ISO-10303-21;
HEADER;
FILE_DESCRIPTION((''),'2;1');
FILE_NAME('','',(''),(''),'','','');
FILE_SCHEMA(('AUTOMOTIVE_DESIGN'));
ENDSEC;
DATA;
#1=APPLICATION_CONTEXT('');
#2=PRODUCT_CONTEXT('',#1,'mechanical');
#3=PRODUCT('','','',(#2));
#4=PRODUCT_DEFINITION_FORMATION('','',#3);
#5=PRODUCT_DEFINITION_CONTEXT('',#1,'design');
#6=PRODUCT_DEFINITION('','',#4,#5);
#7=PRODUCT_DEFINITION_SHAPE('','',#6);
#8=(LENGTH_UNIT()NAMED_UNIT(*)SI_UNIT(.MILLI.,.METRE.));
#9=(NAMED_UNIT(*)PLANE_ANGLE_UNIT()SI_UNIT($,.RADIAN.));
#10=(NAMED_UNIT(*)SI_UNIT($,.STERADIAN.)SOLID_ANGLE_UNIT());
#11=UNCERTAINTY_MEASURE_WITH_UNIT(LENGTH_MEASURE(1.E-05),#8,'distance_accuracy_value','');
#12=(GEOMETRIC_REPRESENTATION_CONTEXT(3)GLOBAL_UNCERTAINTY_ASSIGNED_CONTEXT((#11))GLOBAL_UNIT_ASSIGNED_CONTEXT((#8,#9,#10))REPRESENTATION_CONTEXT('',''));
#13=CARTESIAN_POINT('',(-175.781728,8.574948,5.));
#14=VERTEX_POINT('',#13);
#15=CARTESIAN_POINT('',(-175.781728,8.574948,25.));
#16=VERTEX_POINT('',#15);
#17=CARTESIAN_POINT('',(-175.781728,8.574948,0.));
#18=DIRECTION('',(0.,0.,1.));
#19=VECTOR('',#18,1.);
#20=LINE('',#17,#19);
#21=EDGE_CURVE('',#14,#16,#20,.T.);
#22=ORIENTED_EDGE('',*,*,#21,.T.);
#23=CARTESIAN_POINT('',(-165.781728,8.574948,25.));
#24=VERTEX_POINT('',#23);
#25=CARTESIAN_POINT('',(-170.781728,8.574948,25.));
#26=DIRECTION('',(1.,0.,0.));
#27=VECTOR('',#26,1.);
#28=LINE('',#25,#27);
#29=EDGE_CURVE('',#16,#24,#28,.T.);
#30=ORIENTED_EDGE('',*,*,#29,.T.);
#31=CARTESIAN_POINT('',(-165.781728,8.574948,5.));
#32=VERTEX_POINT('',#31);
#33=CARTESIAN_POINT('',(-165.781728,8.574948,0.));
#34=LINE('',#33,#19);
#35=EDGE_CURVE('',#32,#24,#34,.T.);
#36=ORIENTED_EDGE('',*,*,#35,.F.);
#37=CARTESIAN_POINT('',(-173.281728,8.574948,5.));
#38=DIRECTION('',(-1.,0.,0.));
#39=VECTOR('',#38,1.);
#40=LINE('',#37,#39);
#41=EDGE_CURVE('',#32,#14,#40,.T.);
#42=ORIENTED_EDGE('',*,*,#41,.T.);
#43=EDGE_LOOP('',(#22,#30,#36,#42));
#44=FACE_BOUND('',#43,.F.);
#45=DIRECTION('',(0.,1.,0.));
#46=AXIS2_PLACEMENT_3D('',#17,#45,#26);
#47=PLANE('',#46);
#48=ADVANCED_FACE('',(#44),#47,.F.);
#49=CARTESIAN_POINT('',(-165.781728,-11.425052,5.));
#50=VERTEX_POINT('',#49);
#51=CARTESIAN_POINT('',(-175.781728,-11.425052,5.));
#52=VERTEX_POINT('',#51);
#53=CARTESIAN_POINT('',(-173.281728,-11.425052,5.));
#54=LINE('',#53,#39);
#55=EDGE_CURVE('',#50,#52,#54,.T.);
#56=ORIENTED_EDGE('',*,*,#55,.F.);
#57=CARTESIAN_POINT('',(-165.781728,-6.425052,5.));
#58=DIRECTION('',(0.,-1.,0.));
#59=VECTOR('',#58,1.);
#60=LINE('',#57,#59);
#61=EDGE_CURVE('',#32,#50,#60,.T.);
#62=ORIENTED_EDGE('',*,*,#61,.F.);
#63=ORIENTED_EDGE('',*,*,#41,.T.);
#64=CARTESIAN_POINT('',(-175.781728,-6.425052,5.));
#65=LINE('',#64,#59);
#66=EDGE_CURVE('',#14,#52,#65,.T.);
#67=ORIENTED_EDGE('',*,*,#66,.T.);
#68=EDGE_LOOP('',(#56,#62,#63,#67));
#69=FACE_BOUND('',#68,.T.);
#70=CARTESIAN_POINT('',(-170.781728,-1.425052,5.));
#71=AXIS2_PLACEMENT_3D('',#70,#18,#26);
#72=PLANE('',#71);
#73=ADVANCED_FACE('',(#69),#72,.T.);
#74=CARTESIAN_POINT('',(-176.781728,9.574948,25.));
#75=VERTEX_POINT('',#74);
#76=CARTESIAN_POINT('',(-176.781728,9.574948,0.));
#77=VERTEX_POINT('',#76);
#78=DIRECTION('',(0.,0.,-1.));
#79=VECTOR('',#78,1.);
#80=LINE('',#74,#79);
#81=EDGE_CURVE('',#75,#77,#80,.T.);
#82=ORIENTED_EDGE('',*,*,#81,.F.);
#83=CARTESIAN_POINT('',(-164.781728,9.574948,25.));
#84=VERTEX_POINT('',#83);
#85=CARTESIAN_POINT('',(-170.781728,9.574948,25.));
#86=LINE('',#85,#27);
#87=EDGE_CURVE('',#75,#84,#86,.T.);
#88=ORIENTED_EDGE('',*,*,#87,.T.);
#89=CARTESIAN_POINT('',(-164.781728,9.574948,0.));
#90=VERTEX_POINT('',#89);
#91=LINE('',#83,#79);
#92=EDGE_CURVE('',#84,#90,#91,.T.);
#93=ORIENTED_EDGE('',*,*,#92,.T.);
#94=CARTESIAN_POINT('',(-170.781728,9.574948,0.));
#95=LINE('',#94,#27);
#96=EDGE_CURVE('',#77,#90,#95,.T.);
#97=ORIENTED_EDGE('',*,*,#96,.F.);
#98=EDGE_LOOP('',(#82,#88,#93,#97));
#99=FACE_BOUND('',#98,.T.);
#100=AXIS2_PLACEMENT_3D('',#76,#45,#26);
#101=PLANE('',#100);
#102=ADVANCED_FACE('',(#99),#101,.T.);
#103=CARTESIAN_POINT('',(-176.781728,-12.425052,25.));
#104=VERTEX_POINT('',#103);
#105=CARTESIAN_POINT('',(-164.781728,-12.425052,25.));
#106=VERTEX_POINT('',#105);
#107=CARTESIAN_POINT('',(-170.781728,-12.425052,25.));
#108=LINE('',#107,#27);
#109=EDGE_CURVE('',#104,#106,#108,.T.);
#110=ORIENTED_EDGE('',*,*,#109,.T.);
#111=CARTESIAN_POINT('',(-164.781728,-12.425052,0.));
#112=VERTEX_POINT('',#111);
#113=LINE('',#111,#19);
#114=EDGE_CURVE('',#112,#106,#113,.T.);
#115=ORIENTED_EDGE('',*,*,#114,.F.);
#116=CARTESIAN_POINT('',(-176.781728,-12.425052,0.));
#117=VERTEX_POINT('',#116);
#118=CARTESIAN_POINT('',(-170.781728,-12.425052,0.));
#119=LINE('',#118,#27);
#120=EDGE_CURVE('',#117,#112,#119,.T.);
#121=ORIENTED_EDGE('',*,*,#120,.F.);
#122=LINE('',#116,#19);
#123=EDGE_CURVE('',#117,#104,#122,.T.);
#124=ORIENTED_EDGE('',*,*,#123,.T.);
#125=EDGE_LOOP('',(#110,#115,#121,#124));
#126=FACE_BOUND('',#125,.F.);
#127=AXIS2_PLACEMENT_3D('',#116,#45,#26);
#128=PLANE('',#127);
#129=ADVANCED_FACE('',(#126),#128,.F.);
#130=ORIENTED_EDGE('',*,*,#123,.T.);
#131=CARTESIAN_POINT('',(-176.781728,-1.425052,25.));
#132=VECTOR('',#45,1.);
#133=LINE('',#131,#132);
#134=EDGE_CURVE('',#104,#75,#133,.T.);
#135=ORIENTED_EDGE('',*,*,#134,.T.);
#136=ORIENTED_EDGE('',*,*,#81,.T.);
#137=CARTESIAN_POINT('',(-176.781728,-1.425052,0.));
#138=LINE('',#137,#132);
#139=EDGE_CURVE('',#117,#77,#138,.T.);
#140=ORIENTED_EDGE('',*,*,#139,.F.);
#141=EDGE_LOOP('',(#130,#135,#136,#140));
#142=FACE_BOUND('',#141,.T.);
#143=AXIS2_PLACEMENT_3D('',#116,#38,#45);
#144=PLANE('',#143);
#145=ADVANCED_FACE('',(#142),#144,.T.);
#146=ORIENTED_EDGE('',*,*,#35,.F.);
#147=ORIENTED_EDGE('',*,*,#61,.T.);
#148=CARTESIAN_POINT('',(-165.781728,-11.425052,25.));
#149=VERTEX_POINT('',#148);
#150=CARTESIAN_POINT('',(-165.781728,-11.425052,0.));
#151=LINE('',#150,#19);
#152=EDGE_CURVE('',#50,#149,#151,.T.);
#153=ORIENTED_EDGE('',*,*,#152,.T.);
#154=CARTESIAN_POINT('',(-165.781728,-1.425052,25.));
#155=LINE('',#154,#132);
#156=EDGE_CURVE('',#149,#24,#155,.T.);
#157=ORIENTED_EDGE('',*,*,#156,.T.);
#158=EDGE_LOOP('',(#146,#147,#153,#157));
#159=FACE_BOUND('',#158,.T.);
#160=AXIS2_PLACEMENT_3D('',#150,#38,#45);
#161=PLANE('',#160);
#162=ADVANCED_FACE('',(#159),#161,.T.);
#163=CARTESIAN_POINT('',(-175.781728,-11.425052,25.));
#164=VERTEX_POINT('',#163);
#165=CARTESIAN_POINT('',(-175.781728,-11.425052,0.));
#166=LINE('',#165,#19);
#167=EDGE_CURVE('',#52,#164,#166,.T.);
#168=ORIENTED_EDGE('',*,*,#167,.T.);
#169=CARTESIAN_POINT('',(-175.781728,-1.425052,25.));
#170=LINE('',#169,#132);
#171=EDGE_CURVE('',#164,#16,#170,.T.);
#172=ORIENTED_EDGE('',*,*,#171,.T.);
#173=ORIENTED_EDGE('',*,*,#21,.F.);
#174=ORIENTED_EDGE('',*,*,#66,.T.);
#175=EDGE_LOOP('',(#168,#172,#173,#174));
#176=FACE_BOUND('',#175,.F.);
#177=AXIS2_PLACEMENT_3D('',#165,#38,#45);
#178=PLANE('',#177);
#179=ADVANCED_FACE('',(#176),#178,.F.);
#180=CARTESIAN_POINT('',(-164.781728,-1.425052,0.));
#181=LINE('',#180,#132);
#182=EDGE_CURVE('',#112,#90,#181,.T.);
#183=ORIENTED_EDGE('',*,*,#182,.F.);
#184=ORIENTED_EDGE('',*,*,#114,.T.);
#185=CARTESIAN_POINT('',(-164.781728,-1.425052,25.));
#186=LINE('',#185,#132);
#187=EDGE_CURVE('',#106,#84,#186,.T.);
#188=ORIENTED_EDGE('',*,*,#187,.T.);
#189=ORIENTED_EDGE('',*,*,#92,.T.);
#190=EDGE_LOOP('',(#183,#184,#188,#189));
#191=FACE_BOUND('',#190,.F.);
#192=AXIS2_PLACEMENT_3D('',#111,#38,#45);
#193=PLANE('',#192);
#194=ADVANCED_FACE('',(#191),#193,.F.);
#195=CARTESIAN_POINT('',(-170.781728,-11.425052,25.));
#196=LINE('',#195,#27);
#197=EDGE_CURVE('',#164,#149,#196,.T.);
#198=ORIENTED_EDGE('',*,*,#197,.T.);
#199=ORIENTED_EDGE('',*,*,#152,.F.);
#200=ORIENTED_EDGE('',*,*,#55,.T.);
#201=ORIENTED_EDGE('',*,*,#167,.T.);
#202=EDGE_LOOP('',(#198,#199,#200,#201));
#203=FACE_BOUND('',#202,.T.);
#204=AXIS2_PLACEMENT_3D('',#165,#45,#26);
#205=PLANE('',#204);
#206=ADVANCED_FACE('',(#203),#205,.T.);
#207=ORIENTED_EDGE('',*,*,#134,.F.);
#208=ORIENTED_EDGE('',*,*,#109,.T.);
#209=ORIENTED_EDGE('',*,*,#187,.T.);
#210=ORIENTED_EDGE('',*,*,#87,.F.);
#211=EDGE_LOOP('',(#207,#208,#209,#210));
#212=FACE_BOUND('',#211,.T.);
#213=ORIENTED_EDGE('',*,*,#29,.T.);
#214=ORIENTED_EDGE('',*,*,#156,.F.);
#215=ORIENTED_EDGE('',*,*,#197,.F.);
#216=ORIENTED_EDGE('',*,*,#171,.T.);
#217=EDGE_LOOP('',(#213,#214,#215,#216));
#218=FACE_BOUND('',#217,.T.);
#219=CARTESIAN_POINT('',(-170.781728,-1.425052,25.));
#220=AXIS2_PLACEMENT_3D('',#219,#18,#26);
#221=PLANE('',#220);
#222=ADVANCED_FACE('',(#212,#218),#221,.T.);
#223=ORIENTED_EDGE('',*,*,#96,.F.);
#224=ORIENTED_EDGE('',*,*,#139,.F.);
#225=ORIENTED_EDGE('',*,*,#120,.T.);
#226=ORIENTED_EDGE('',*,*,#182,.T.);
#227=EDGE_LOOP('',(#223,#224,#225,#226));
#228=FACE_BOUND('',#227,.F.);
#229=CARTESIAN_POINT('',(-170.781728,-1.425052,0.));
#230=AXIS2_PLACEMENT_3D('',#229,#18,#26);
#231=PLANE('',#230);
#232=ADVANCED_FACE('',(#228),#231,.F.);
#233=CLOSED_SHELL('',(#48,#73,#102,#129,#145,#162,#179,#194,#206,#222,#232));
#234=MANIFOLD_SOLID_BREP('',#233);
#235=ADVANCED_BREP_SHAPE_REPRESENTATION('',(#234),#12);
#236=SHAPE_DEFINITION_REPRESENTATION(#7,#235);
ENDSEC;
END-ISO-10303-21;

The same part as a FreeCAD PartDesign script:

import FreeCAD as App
import Part
import Sketcher

V = App.Vector
Q = App.Units.Quantity

doc = App.newDocument("Part")
body = doc.addObject("PartDesign::Body", "Body")

# Sketch on XY plane
sketch1 = doc.addObject("Sketcher::SketchObject", "Sketch")
body.addObject(sketch1)
sketch1.AttachmentSupport = (doc.XY_Plane, [""])
sketch1.MapMode = "FlatFace"
sketch1.addGeometry(Part.LineSegment(V(-177, 10, 0), V(-177, -12, 0)), False)
sketch1.addGeometry(Part.LineSegment(V(-177, -12, 0), V(-165, -12, 0)), False)
sketch1.addGeometry(Part.LineSegment(V(-165, -12, 0), V(-165, 10, 0)), False)
sketch1.addGeometry(Part.LineSegment(V(-165, 10, 0), V(-177, 10, 0)), False)
sketch1.addConstraint(Sketcher.Constraint("Coincident", 0, 2, 1, 1))
sketch1.addConstraint(Sketcher.Constraint("Coincident", 1, 2, 2, 1))
sketch1.addConstraint(Sketcher.Constraint("Coincident", 2, 2, 3, 1))
sketch1.addConstraint(Sketcher.Constraint("Coincident", 3, 2, 0, 1))
sketch1.addConstraint(Sketcher.Constraint("Vertical", 0))
sketch1.addConstraint(Sketcher.Constraint("Horizontal", 1))
sketch1.addConstraint(Sketcher.Constraint("Vertical", 2))
sketch1.addConstraint(Sketcher.Constraint("Horizontal", 3))
sketch1.addConstraint(Sketcher.Constraint("DistanceX", 1, 1, 1, 2, Q("12 mm")))
sketch1.addConstraint(Sketcher.Constraint("DistanceY", 0, 2, 0, 1, Q("22 mm")))
sketch1.addConstraint(Sketcher.Constraint("DistanceX", 0, 2, -1, 1, Q("176.781728 mm")))
sketch1.addConstraint(Sketcher.Constraint("DistanceY", 0, 2, -1, 1, Q("12.425052 mm")))
pad1 = doc.addObject("PartDesign::Pad", "Pad")
body.addObject(pad1)
pad1.Profile = sketch1
pad1.Length = 5

# Sketch on XY plane
sketch2 = doc.addObject("Sketcher::SketchObject", "Sketch001")
body.addObject(sketch2)
sketch2.AttachmentSupport = (doc.XY_Plane, [""])
sketch2.MapMode = "FlatFace"
sketch2.addGeometry(Part.LineSegment(V(-177, 10, 0), V(-177, -12, 0)), False)
sketch2.addGeometry(Part.LineSegment(V(-177, -12, 0), V(-165, -12, 0)), False)
sketch2.addGeometry(Part.LineSegment(V(-165, -12, 0), V(-165, 10, 0)), False)
sketch2.addGeometry(Part.LineSegment(V(-165, 10, 0), V(-177, 10, 0)), False)
sketch2.addGeometry(Part.LineSegment(V(-166, -11, 0), V(-176, -11, 0)), False)
sketch2.addGeometry(Part.LineSegment(V(-176, -11, 0), V(-176, 9, 0)), False)
sketch2.addGeometry(Part.LineSegment(V(-176, 9, 0), V(-166, 9, 0)), False)
sketch2.addGeometry(Part.LineSegment(V(-166, 9, 0), V(-166, -11, 0)), False)
sketch2.addConstraint(Sketcher.Constraint("Coincident", 0, 2, 1, 1))
sketch2.addConstraint(Sketcher.Constraint("Coincident", 1, 2, 2, 1))
sketch2.addConstraint(Sketcher.Constraint("Coincident", 2, 2, 3, 1))
sketch2.addConstraint(Sketcher.Constraint("Coincident", 3, 2, 0, 1))
sketch2.addConstraint(Sketcher.Constraint("Coincident", 4, 2, 5, 1))
sketch2.addConstraint(Sketcher.Constraint("Coincident", 5, 2, 6, 1))
sketch2.addConstraint(Sketcher.Constraint("Coincident", 6, 2, 7, 1))
sketch2.addConstraint(Sketcher.Constraint("Coincident", 7, 2, 4, 1))
sketch2.addConstraint(Sketcher.Constraint("Vertical", 0))
sketch2.addConstraint(Sketcher.Constraint("Horizontal", 1))
sketch2.addConstraint(Sketcher.Constraint("Vertical", 2))
sketch2.addConstraint(Sketcher.Constraint("Horizontal", 3))
sketch2.addConstraint(Sketcher.Constraint("Horizontal", 4))
sketch2.addConstraint(Sketcher.Constraint("Vertical", 5))
sketch2.addConstraint(Sketcher.Constraint("Horizontal", 6))
sketch2.addConstraint(Sketcher.Constraint("Vertical", 7))
sketch2.addConstraint(Sketcher.Constraint("DistanceX", 1, 1, 1, 2, Q("12 mm")))
sketch2.addConstraint(Sketcher.Constraint("DistanceX", 4, 2, 4, 1, Q("10 mm")))
sketch2.addConstraint(Sketcher.Constraint("DistanceY", 0, 2, 0, 1, Q("22 mm")))
sketch2.addConstraint(Sketcher.Constraint("DistanceY", 5, 1, 5, 2, Q("20 mm")))
sketch2.addConstraint(Sketcher.Constraint("DistanceX", 0, 2, 4, 2, Q("1 mm")))
sketch2.addConstraint(Sketcher.Constraint("DistanceY", 0, 2, 4, 2, Q("1 mm")))
sketch2.addConstraint(Sketcher.Constraint("DistanceX", 0, 2, -1, 1, Q("176.781728 mm")))
sketch2.addConstraint(Sketcher.Constraint("DistanceY", 0, 2, -1, 1, Q("12.425052 mm")))
pad2 = doc.addObject("PartDesign::Pad", "Pad001")
body.addObject(pad2)
pad2.Profile = sketch2
pad2.Length = 25

doc.recompute()
